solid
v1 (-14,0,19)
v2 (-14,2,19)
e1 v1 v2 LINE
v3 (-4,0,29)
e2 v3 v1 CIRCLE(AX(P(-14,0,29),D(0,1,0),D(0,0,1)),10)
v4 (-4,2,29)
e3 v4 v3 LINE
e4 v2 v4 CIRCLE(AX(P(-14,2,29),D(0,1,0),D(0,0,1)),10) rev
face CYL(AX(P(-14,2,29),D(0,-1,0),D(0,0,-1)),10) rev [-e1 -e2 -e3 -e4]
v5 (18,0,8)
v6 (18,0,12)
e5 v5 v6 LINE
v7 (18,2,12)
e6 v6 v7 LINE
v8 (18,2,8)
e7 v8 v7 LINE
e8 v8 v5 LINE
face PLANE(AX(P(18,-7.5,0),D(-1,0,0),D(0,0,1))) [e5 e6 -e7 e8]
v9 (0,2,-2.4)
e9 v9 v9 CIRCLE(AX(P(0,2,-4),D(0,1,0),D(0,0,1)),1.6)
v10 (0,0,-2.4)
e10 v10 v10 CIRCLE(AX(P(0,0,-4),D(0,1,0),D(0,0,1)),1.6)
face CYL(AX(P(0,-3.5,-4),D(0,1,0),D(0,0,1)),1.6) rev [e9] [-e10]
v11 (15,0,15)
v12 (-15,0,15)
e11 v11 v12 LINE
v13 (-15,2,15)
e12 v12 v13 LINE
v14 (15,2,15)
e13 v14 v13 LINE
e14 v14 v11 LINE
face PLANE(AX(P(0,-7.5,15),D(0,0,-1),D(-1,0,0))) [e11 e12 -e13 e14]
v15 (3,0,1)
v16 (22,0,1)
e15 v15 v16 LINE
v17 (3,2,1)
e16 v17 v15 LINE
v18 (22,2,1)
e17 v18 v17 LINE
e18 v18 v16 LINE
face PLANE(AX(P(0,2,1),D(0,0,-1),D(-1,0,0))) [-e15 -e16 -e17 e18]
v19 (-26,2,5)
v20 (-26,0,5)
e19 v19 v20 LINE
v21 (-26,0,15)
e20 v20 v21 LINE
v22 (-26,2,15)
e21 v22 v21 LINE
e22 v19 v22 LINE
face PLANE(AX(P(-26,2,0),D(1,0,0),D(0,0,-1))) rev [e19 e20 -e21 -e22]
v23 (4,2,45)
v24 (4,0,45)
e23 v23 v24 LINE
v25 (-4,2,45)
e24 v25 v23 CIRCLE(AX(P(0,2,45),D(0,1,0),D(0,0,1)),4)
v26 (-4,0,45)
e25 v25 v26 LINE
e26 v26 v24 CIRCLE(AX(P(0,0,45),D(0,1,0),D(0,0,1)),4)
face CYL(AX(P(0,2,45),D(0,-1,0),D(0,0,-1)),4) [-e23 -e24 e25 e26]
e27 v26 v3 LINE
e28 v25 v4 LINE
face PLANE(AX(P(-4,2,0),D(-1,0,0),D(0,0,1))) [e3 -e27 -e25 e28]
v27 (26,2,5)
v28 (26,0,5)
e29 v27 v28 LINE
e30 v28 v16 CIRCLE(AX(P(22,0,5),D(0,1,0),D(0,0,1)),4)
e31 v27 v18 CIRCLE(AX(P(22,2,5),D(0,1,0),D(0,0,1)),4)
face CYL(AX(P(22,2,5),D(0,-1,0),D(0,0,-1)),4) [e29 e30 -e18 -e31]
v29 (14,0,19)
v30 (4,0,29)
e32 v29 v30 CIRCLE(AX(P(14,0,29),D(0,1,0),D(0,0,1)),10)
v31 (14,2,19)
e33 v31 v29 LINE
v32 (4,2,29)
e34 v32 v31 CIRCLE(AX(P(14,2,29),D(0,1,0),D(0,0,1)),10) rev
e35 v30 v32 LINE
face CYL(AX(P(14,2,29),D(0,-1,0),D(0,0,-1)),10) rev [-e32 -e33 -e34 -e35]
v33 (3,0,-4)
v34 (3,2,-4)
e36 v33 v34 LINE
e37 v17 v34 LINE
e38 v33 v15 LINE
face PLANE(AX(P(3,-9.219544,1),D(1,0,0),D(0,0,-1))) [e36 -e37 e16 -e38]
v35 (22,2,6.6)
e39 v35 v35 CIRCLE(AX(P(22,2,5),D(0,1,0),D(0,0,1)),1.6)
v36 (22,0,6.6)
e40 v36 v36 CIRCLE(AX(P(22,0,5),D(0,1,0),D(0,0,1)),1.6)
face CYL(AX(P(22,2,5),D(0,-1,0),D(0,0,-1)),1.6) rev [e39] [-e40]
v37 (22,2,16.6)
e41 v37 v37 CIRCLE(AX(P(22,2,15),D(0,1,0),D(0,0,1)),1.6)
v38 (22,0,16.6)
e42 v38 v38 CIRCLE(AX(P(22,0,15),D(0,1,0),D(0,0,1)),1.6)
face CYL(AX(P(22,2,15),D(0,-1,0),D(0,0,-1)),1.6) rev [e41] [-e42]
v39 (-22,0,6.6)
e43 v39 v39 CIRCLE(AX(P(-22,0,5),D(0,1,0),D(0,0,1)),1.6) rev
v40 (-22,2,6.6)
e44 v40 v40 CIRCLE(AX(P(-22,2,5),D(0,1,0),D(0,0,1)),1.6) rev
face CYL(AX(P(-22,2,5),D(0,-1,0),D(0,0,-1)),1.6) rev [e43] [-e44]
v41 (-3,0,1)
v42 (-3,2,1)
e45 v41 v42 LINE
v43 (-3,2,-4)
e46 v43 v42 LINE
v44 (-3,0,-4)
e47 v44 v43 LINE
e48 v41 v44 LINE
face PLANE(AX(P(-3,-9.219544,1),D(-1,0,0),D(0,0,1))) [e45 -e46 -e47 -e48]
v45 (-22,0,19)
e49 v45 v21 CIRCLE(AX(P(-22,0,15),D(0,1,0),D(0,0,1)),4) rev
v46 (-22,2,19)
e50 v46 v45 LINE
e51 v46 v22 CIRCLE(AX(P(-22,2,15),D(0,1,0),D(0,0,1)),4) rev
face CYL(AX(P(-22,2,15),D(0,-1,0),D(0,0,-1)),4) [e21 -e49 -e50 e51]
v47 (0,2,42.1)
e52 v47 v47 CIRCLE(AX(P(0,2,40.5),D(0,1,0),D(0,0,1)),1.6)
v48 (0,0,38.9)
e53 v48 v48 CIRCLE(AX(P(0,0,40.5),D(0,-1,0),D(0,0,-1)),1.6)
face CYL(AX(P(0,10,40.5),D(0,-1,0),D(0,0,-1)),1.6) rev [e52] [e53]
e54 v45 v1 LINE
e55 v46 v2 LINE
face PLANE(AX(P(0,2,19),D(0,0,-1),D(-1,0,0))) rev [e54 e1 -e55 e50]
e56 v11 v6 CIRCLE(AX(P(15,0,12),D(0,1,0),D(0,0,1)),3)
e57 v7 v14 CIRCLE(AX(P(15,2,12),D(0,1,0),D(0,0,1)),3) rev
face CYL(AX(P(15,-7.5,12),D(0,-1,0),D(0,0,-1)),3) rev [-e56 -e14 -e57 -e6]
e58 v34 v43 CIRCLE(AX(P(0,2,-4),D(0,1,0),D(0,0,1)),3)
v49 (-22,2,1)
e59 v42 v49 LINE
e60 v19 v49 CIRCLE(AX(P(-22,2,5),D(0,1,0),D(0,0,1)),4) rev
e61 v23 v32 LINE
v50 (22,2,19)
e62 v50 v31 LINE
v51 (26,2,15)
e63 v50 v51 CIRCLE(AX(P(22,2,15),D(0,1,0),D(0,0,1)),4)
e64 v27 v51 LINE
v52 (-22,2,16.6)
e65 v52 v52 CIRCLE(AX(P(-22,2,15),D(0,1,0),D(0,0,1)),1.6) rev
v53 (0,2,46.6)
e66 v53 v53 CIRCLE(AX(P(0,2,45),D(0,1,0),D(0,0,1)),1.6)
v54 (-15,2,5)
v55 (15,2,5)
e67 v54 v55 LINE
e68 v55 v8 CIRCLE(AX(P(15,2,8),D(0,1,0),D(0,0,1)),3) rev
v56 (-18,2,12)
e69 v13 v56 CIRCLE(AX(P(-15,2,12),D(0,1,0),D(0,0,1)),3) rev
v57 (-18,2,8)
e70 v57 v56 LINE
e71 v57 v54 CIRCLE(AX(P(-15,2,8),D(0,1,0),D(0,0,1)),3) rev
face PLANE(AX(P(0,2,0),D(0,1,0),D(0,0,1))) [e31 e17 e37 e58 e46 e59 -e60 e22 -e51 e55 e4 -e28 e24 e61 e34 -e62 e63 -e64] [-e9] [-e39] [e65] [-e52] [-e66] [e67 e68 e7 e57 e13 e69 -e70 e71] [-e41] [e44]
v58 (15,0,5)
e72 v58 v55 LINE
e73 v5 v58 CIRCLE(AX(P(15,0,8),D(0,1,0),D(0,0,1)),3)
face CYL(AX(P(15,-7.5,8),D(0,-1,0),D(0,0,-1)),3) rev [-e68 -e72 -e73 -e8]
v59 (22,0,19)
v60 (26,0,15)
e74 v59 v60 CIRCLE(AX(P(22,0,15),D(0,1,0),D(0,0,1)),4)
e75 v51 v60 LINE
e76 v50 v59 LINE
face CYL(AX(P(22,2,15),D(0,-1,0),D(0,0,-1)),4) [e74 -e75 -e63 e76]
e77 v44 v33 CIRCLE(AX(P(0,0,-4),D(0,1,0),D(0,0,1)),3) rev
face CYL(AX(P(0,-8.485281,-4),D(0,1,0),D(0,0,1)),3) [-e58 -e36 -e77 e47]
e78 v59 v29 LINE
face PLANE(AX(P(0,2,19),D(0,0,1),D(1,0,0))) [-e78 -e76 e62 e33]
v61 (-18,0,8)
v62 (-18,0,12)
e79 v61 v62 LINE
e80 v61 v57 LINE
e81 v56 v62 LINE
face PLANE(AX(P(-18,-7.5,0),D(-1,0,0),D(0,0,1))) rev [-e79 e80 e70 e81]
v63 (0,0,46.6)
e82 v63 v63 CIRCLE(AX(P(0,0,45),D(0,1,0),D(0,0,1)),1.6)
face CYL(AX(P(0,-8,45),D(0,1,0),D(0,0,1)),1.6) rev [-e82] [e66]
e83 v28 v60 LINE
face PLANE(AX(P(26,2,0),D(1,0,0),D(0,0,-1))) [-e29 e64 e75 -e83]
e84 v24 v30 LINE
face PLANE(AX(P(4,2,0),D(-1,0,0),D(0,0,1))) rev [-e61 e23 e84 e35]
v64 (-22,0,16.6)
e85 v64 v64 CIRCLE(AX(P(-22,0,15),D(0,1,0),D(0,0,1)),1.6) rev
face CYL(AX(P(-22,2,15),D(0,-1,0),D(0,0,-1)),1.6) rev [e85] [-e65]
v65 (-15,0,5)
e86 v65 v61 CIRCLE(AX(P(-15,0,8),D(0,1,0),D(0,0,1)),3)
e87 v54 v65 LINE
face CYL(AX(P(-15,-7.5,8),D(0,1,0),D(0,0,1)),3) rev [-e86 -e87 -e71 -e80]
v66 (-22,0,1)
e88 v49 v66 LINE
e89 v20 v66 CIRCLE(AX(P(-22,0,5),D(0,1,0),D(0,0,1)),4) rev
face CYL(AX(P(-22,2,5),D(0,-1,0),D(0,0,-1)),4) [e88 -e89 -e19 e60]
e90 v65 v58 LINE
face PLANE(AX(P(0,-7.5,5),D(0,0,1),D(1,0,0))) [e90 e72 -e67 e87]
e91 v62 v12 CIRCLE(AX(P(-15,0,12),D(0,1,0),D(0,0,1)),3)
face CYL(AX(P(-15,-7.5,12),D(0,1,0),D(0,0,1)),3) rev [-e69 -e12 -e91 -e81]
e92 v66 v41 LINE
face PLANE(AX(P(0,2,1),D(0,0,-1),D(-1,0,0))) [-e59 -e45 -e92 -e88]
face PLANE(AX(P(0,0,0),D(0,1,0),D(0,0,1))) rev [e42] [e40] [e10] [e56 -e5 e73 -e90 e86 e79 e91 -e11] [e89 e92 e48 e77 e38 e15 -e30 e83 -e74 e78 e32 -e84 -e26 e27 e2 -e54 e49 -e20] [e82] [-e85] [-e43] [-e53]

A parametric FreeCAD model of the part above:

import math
import FreeCAD as App
import Part
import Sketcher

V = App.Vector


def edges_at(feature, points):
    """Names of the edges that pass closest to the given points."""
    edges = feature.Shape.Edges
    near = lambda p: min(range(len(edges)), key=lambda i: edges[i].distToShape(Part.Vertex(*p))[0])
    return sorted({f"Edge{near(p) + 1}" for p in points})


def add_polygon(sketch, points):
    """Adds a closed chain of lines whose ends are joined by coincident constraints."""
    first, n = sketch.GeometryCount, len(points)
    for a, b in zip(points, points[1:] + points[:1]):
        sketch.addGeometry(Part.LineSegment(App.Vector(*a, 0), App.Vector(*b, 0)), False)
    for i in range(n):
        sketch.addConstraint(Sketcher.Constraint("Coincident", first + i, 2, first + (i + 1) % n, 1))

doc = App.newDocument("Part")
body = doc.addObject("PartDesign::Body", "Body")

sketch1 = body.newObject("Sketcher::SketchObject", "Sketch")
sketch1.AttachmentSupport = (doc.getObject("XZ_Plane"), [""])
sketch1.MapMode = "FlatFace"
sketch1.addGeometry([
    Part.LineSegment(V(-4, 19, 0), V(-4, 45, 0)),
    Part.ArcOfCircle(Part.Circle(V(0, 45, 0), V(0, 0, 1), 4), math.radians(0), math.radians(180)),
    Part.LineSegment(V(4, 45, 0), V(4, 19, 0)),
    Part.LineSegment(V(4, 19, 0), V(22, 19, 0)),
    Part.ArcOfCircle(Part.Circle(V(22, 15, 0), V(0, 0, 1), 4), math.radians(0), math.radians(90)),
    Part.LineSegment(V(26, 15, 0), V(26, 5, 0)),
    Part.ArcOfCircle(Part.Circle(V(22, 5, 0), V(0, 0, 1), 4), math.radians(-90), math.radians(0)),
    Part.LineSegment(V(22, 1, 0), V(4, 1, 0)),
    Part.LineSegment(V(4, 1, 0), V(4, 0, 0)),
    Part.ArcOfCircle(Part.Circle(V(0, 0, 0), V(0, 0, 1), 4), math.radians(180), math.radians(360)),
    Part.LineSegment(V(-4, 0, 0), V(-4, 1, 0)),
    Part.LineSegment(V(-4, 1, 0), V(-22, 1, 0)),
    Part.ArcOfCircle(Part.Circle(V(-22, 5, 0), V(0, 0, 1), 4), math.radians(180), math.radians(270)),
    Part.LineSegment(V(-26, 5, 0), V(-26, 15, 0)),
    Part.ArcOfCircle(Part.Circle(V(-22, 15, 0), V(0, 0, 1), 4), math.radians(90), math.radians(180)),
    Part.LineSegment(V(-22, 19, 0), V(-4, 19, 0)),
    Part.LineSegment(V(-1.6, 45, 0), V(-1.6, 30, 0)),
    Part.ArcOfCircle(Part.Circle(V(0, 30, 0), V(0, 0, 1), 1.6), math.radians(180), math.radians(360)),
    Part.LineSegment(V(1.6, 30, 0), V(1.6, 45, 0)),
    Part.ArcOfCircle(Part.Circle(V(0, 45, 0), V(0, 0, 1), 1.6), math.radians(0), math.radians(180)),
    Part.Circle(V(22, 15, 0), V(0, 0, 1), 1.6),
    Part.Circle(V(22, 5, 0), V(0, 0, 1), 1.6),
    Part.Circle(V(-22, 15, 0), V(0, 0, 1), 1.6),
    Part.Circle(V(0, 0, 0), V(0, 0, 1), 1.6),
    Part.Circle(V(-22, 5, 0), V(0, 0, 1), 1.6),
], False)
sketch1.addConstraint([
    Sketcher.Constraint("Tangent", 0, 2, 1, 2),
    Sketcher.Constraint("Tangent", 1, 1, 2, 1),
    Sketcher.Constraint("Coincident", 2, 2, 3, 1),
    Sketcher.Constraint("Tangent", 3, 2, 4, 2),
    Sketcher.Constraint("Tangent", 4, 1, 5, 1),
    Sketcher.Constraint("Tangent", 5, 2, 6, 2),
    Sketcher.Constraint("Tangent", 6, 1, 7, 1),
    Sketcher.Constraint("Coincident", 7, 2, 8, 1),
    Sketcher.Constraint("Tangent", 8, 2, 9, 2),
    Sketcher.Constraint("Tangent", 9, 1, 10, 1),
    Sketcher.Constraint("Coincident", 10, 2, 11, 1),
    Sketcher.Constraint("Tangent", 11, 2, 12, 2),
    Sketcher.Constraint("Tangent", 12, 1, 13, 1),
    Sketcher.Constraint("Tangent", 13, 2, 14, 2),
    Sketcher.Constraint("Tangent", 14, 1, 15, 1),
    Sketcher.Constraint("Coincident", 15, 2, 0, 1),
    Sketcher.Constraint("Tangent", 16, 2, 17, 1),
    Sketcher.Constraint("Tangent", 17, 2, 18, 1),
    Sketcher.Constraint("Tangent", 18, 2, 19, 1),
    Sketcher.Constraint("Tangent", 19, 2, 16, 1),
    Sketcher.Constraint("Vertical", 0),
    Sketcher.Constraint("Vertical", 2),
    Sketcher.Constraint("Horizontal", 3),
    Sketcher.Constraint("Vertical", 5),
    Sketcher.Constraint("Horizontal", 7),
    Sketcher.Constraint("Vertical", 8),
    Sketcher.Constraint("Vertical", 10),
    Sketcher.Constraint("Horizontal", 11),
    Sketcher.Constraint("Vertical", 13),
    Sketcher.Constraint("Horizontal", 15),
    Sketcher.Constraint("Vertical", 16),
    Sketcher.Constraint("Vertical", 18),
    Sketcher.Constraint("Coincident", 9, 3, -1, 1),
    Sketcher.Constraint("Coincident", 23, 3, -1, 1),
    Sketcher.Constraint("Coincident", 19, 3, 1, 3),
    Sketcher.Constraint("Coincident", 20, 3, 4, 3),
    Sketcher.Constraint("Coincident", 21, 3, 6, 3),
    Sketcher.Constraint("Coincident", 22, 3, 14, 3),
    Sketcher.Constraint("Coincident", 24, 3, 12, 3),
    Sketcher.Constraint("Equal", 1, 4),
    Sketcher.Constraint("Equal", 4, 6),
    Sketcher.Constraint("Equal", 6, 9),
    Sketcher.Constraint("Equal", 9, 12),
    Sketcher.Constraint("Equal", 12, 14),
    Sketcher.Constraint("Equal", 19, 20),
    Sketcher.Constraint("Equal", 20, 21),
    Sketcher.Constraint("Equal", 21, 22),
    Sketcher.Constraint("Equal", 22, 23),
    Sketcher.Constraint("Equal", 23, 24),
    Sketcher.Constraint("Symmetric", 6, 3, 12, 3, -2),
    Sketcher.Constraint("Symmetric", 2, 2, 15, 2, -2),
    Sketcher.Constraint("Radius", 1, 4.0),
    Sketcher.Constraint("Diameter", 20, 3.2),
    Sketcher.Constraint("DistanceX", 3, 1, 3, 2, 18.0),
    Sketcher.Constraint("DistanceY", 0, 1, 0, 2, 26.0),
    Sketcher.Constraint("DistanceY", 5, 2, 5, 1, 10.0),
    Sketcher.Constraint("DistanceY", 8, 2, 8, 1, 1.0),
    Sketcher.Constraint("DistanceY", 16, 2, 16, 1, 15.0),
])
pad1 = body.newObject("PartDesign::Pad", "Pad")
pad1.Profile = sketch1
pad1.Length = 2
pad1.Reversed = True
doc.recompute()

fillet = body.newObject("PartDesign::Fillet", "Fillet")
fillet.Base = (pad1, edges_at(pad1, [(-4, 1, 19), (4, 1, 19)]))
fillet.Radius = 10

sketch2 = body.newObject("Sketcher::SketchObject", "Sketch001")
sketch2.AttachmentSupport = (doc.getObject("XZ_Plane"), [""])
sketch2.MapMode = "FlatFace"
sketch2.AttachmentOffset = App.Placement(V(0, 0, -2), App.Rotation())
sketch2.addGeometry([
    Part.LineSegment(V(4, 0, 0), V(4, -3, 0)),
    Part.ArcOfCircle(Part.Circle(V(0, -3, 0), V(0, 0, 1), 4), math.radians(180), math.radians(360)),
    Part.LineSegment(V(-4, -3, 0), V(-4, 0, 0)),
    Part.ArcOfCircle(Part.Circle(V(0, 0, 0), V(0, 0, 1), 4), math.radians(0), math.radians(180)),
    Part.ArcOfCircle(Part.Circle(V(0, -3, 0), V(0, 0, 1), 1.6), math.radians(-152), math.radians(-28)),
    Part.ArcOfCircle(Part.Circle(V(0, 0, 0), V(0, 0, 1), 4), math.radians(-111), math.radians(-69)),
], False)
sketch2.addConstraint([
    Sketcher.Constraint("Tangent", 0, 2, 1, 2),
    Sketcher.Constraint("Tangent", 1, 1, 2, 1),
    Sketcher.Constraint("Tangent", 2, 2, 3, 2),
    Sketcher.Constraint("Tangent", 3, 1, 0, 1),
    Sketcher.Constraint("Coincident", 4, 1, 5, 1),
    Sketcher.Constraint("Coincident", 5, 2, 4, 2),
    Sketcher.Constraint("Vertical", 0),
    Sketcher.Constraint("Vertical", 2),
    Sketcher.Constraint("Coincident", 3, 3, -1, 1),
    Sketcher.Constraint("Coincident", 5, 3, -1, 1),
    Sketcher.Constraint("Coincident", 4, 3, 1, 3),
    Sketcher.Constraint("Equal", 3, 5),
    Sketcher.Constraint("Radius", 1, 4.0),
    Sketcher.Constraint("Radius", 4, 1.6),
    Sketcher.Constraint("DistanceY", 0, 2, 0, 1, 3.0),
])
pad2 = body.newObject("PartDesign::Pad", "Pad001")
pad2.Profile = sketch2
pad2.Length = 2

sketch3 = body.newObject("Sketcher::SketchObject", "Sketch002")
sketch3.AttachmentSupport = (doc.getObject("XZ_Plane"), [""])
sketch3.MapMode = "FlatFace"
sketch3.AttachmentOffset = App.Placement(V(0, 0, -2), App.Rotation())
sketch3.addGeometry(Part.Circle(V(0, -3, 0), V(0, 0, 1), 1.6), False)
sketch3.addConstraint([
    Sketcher.Constraint("PointOnObject", 0, 3, -2),
    Sketcher.Constraint("Diameter", 0, 3.2),
    Sketcher.Constraint("DistanceY", 0, 3, -1, 1, 3.0),
])
pocket1 = body.newObject("PartDesign::Pocket", "Pocket")
pocket1.Profile = sketch3
pocket1.Length = 4
pocket1.Reversed = True

sketch4 = body.newObject("Sketcher::SketchObject", "Sketch003")
sketch4.AttachmentSupport = (doc.getObject("XZ_Plane"), [""])
sketch4.MapMode = "FlatFace"
sketch4.AttachmentOffset = App.Placement(V(0, 0, -2), App.Rotation())
add_polygon(sketch4, [(-4, 1), (4, 1), (9, -13), (-12, -14)])
sketch4.addConstraint([
    Sketcher.Constraint("Horizontal", 0),
    Sketcher.Constraint("DistanceX", 0, 1, 0, 2, 8.0),
    Sketcher.Constraint("DistanceX", -1, 1, 0, 2, 4.0),
    Sketcher.Constraint("DistanceY", -1, 1, 0, 2, 1.0),
    Sketcher.Constraint("Distance", 3, 17.341099),
    Sketcher.Constraint("DistanceY", 2, 2, 1, 2, 1.51228),
    Sketcher.Constraint("Distance", 1, 14.809086),
    Sketcher.Constraint("Distance", 2, 21.133514),
])
pocket2 = body.newObject("PartDesign::Pocket", "Pocket001")
pocket2.Profile = sketch4
pocket2.Length = 10
pocket2.Reversed = True

sketch5 = body.newObject("Sketcher::SketchObject", "Sketch004")
sketch5.AttachmentSupport = (doc.getObject("XZ_Plane"), [""])
sketch5.MapMode = "FlatFace"
sketch5.AttachmentOffset = App.Placement(V(0, 0, -2), App.Rotation())
sketch5.addGeometry([
    Part.Circle(V(0, 1, 0), V(0, 0, 1), 3),
    Part.Circle(V(0, 1, 0), V(0, 0, 1), 1.6),
], False)
sketch5.addConstraint([
    Sketcher.Constraint("Coincident", 1, 3, 0, 3),
    Sketcher.Constraint("PointOnObject", 0, 3, -2),
    Sketcher.Constraint("Diameter", 0, 6.0),
    Sketcher.Constraint("Diameter", 1, 3.2),
    Sketcher.Constraint("DistanceY", -1, 1, 0, 3, 1.0),
])
pad3 = body.newObject("PartDesign::Pad", "Pad002")
pad3.Profile = sketch5
pad3.Length = 2

sketch6 = body.newObject("Sketcher::SketchObject", "Sketch005")
sketch6.AttachmentSupport = (doc.getObject("XZ_Plane"), [""])
sketch6.MapMode = "FlatFace"
sketch6.AttachmentOffset = App.Placement(V(0, 0, -2), App.Rotation())
sketch6.addGeometry(Part.Circle(V(0, 1, 0), V(0, 0, 1), 1.6), False)
sketch6.addConstraint([
    Sketcher.Constraint("PointOnObject", 0, 3, -2),
    Sketcher.Constraint("Diameter", 0, 3.2),
    Sketcher.Constraint("DistanceY", -1, 1, 0, 3, 1.0),
])
pocket3 = body.newObject("PartDesign::Pocket", "Pocket002")
pocket3.Profile = sketch6
pocket3.Length = 10
pocket3.Reversed = True

sketch7 = body.newObject("Sketcher::SketchObject", "Sketch006")
sketch7.AttachmentSupport = (doc.getObject("XZ_Plane"), [""])
sketch7.MapMode = "FlatFace"
sketch7.AttachmentOffset = App.Placement(V(0, 0, -2), App.Rotation())
add_polygon(sketch7, [(-18, 5), (-18, 15), (18, 15), (18, 5)])
sketch7.addConstraint([
    Sketcher.Constraint("Vertical", 0),
    Sketcher.Constraint("Horizontal", 1),
    Sketcher.Constraint("Vertical", 2),
    Sketcher.Constraint("Horizontal", 3),
    Sketcher.Constraint("DistanceX", 1, 1, 1, 2, 36.0),
    Sketcher.Constraint("DistanceY", 0, 1, 0, 2, 10.0),
    Sketcher.Constraint("DistanceX", 0, 2, -1, 1, 18.0),
    Sketcher.Constraint("DistanceY", -1, 1, 0, 2, 15.0),
])
pocket4 = body.newObject("PartDesign::Pocket", "Pocket003")
pocket4.Profile = sketch7
pocket4.Length = 9.5
pocket4.Reversed = True
doc.recompute()

fillet2 = body.newObject("PartDesign::Fillet", "Fillet001")
fillet2.Base = (pocket4, edges_at(pocket4, [
    (-18, 1, 5),
    (18, 1, 5),
    (18, 1, 15),
    (-18, 1, 15),
]))
fillet2.Radius = 3

sketch8 = body.newObject("Sketcher::SketchObject", "Sketch007")
sketch8.AttachmentSupport = (doc.getObject("XZ_Plane"), [""])
sketch8.MapMode = "FlatFace"
sketch8.AttachmentOffset = App.Placement(V(0, 0, -2), App.Rotation())
sketch8.addGeometry(Part.Circle(V(0, 1, 0), V(0, 0, 1), 1.6), False)
sketch8.addConstraint([
    Sketcher.Constraint("PointOnObject", 0, 3, -2),
    Sketcher.Constraint("Diameter", 0, 3.2),
    Sketcher.Constraint("DistanceY", -1, 1, 0, 3, 1.0),
])
pad4 = body.newObject("PartDesign::Pad", "Pad003")
pad4.Profile = sketch8
pad4.Length = 2

sketch9 = body.newObject("Sketcher::SketchObject", "Sketch008")
sketch9.AttachmentSupport = (doc.getObject("XZ_Plane"), [""])
sketch9.MapMode = "FlatFace"
sketch9.AttachmentOffset = App.Placement(V(0, 0, -2), App.Rotation())
sketch9.addGeometry([
    Part.LineSegment(V(3, 1, 0), V(3, -3, 0)),
    Part.ArcOfCircle(Part.Circle(V(0, -3, 0), V(0, 0, 1), 3), math.radians(180), math.radians(360)),
    Part.LineSegment(V(-3, -3, 0), V(-3, 1, 0)),
    Part.LineSegment(V(-3, 1, 0), V(3, 1, 0)),
    Part.Circle(V(0, -3, 0), V(0, 0, 1), 1.6),
], False)
sketch9.addConstraint([
    Sketcher.Constraint("Tangent", 0, 2, 1, 2),
    Sketcher.Constraint("Tangent", 1, 1, 2, 1),
    Sketcher.Constraint("Coincident", 2, 2, 3, 1),
    Sketcher.Constraint("Coincident", 3, 2, 0, 1),
    Sketcher.Constraint("Vertical", 0),
    Sketcher.Constraint("Vertical", 2),
    Sketcher.Constraint("Horizontal", 3),
    Sketcher.Constraint("Coincident", 4, 3, 1, 3),
    Sketcher.Constraint("PointOnObject", 1, 3, -2),
    Sketcher.Constraint("Radius", 1, 3.0),
    Sketcher.Constraint("Diameter", 4, 3.2),
    Sketcher.Constraint("DistanceY", 0, 2, 0, 1, 4.0),
    Sketcher.Constraint("DistanceY", 1, 3, -1, 1, 3.0),
])
pad5 = body.newObject("PartDesign::Pad", "Pad004")
pad5.Profile = sketch9
pad5.Length = 2

sketch10 = body.newObject("Sketcher::SketchObject", "Sketch009")
sketch10.AttachmentSupport = (doc.getObject("XZ_Plane"), [""])
sketch10.MapMode = "FlatFace"
sketch10.AttachmentOffset = App.Placement(V(0, 0, -2), App.Rotation())
sketch10.addGeometry(Part.Circle(V(0, -3, 0), V(0, 0, 1), 1.6), False)
sketch10.addConstraint([
    Sketcher.Constraint("PointOnObject", 0, 3, -2),
    Sketcher.Constraint("Diameter", 0, 3.2),
    Sketcher.Constraint("DistanceY", 0, 3, -1, 1, 3.0),
])
pocket5 = body.newObject("PartDesign::Pocket", "Pocket004")
pocket5.Profile = sketch10
pocket5.Length = 10
pocket5.Reversed = True

sketch11 = body.newObject("Sketcher::SketchObject", "Sketch010")
sketch11.AttachmentSupport = (doc.getObject("XZ_Plane"), [""])
sketch11.MapMode = "FlatFace"
sketch11.AttachmentOffset = App.Placement(V(0, 0, -2), App.Rotation())
sketch11.addGeometry([
    Part.LineSegment(V(-3, -4, 0), V(-3, -3, 0)),
    Part.LineSegment(V(-3, -3, 0), V(-2.83, -3, 0)),
    Part.ArcOfCircle(Part.Circle(V(0, -4, 0), V(0, 0, 1), 3), math.radians(19), math.radians(161)),
    Part.LineSegment(V(2.83, -3, 0), V(3, -3, 0)),
    Part.LineSegment(V(3, -3, 0), V(3, -4, 0)),
    Part.ArcOfCircle(Part.Circle(V(0, -4, 0), V(0, 0, 1), 3), math.radians(180), math.radians(360)),
], False)
sketch11.addConstraint([
    Sketcher.Constraint("Coincident", 0, 2, 1, 1),
    Sketcher.Constraint("Coincident", 1, 2, 2, 2),
    Sketcher.Constraint("Coincident", 2, 1, 3, 1),
    Sketcher.Constraint("Coincident", 3, 2, 4, 1),
    Sketcher.Constraint("Tangent", 4, 2, 5, 2),
    Sketcher.Constraint("Tangent", 5, 1, 0, 1),
    Sketcher.Constraint("Vertical", 0),
    Sketcher.Constraint("Horizontal", 1),
    Sketcher.Constraint("Horizontal", 3),
    Sketcher.Constraint("Vertical", 4),
    Sketcher.Constraint("Coincident", 5, 3, 2, 3),
    Sketcher.Constraint("Equal", 2, 5),
    Sketcher.Constraint("Symmetric", 1, 2, 2, 1, -2),
    Sketcher.Constraint("Radius", 2, 3.0),
    Sketcher.Constraint("DistanceY", 0, 1, 0, 2, 1.0),
    Sketcher.Constraint("DistanceY", 2, 3, -1, 1, 4.0),
])
pad6 = body.newObject("PartDesign::Pad", "Pad005")
pad6.Profile = sketch11
pad6.Length = 2

sketch12 = body.newObject("Sketcher::SketchObject", "Sketch011")
sketch12.AttachmentSupport = (doc.getObject("XZ_Plane"), [""])
sketch12.MapMode = "FlatFace"
sketch12.AttachmentOffset = App.Placement(V(0, 0, -2), App.Rotation())
sketch12.addGeometry(Part.Circle(V(0, -4, 0), V(0, 0, 1), 1.6), False)
sketch12.addConstraint([
    Sketcher.Constraint("PointOnObject", 0, 3, -2),
    Sketcher.Constraint("Diameter", 0, 3.2),
    Sketcher.Constraint("DistanceY", 0, 3, -1, 1, 4.0),
])
pocket6 = body.newObject("PartDesign::Pocket", "Pocket005")
pocket6.Profile = sketch12
pocket6.Length = 5.5
pocket6.Reversed = True

sketch13 = body.newObject("Sketcher::SketchObject", "Sketch012")
sketch13.AttachmentSupport = (doc.getObject("XZ_Plane"), [""])
sketch13.MapMode = "FlatFace"
sketch13.AttachmentOffset = App.Placement(V(0, 0, -2), App.Rotation())
sketch13.addGeometry([
    Part.LineSegment(V(-4, 24, 0), V(-4, 45, 0)),
    Part.ArcOfCircle(Part.Circle(V(0, 45, 0), V(0, 0, 1), 4), math.radians(0), math.radians(180)),
    Part.LineSegment(V(4, 45, 0), V(4, 24, 0)),
    Part.LineSegment(V(4, 24, 0), V(-4, 24, 0)),
], False)
sketch13.addConstraint([
    Sketcher.Constraint("Tangent", 0, 2, 1, 2),
    Sketcher.Constraint("Tangent", 1, 1, 2, 1),
    Sketcher.Constraint("Coincident", 2, 2, 3, 1),
    Sketcher.Constraint("Coincident", 3, 2, 0, 1),
    Sketcher.Constraint("Vertical", 0),
    Sketcher.Constraint("Vertical", 2),
    Sketcher.Constraint("Horizontal", 3),
    Sketcher.Constraint("PointOnObject", 1, 3, -2),
    Sketcher.Constraint("Radius", 1, 4.0),
    Sketcher.Constraint("DistanceY", -1, 1, 1, 3, 45.0),
    Sketcher.Constraint("DistanceY", 0, 1, 0, 2, 21.04625),
])
pad7 = body.newObject("PartDesign::Pad", "Pad006")
pad7.Profile = sketch13
pad7.Length = 2

sketch14 = body.newObject("Sketcher::SketchObject", "Sketch013")
sketch14.AttachmentSupport = (doc.getObject("XZ_Plane"), [""])
sketch14.MapMode = "FlatFace"
sketch14.AttachmentOffset = App.Placement(V(0, 0, -2), App.Rotation())
sketch14.addGeometry([
    Part.Circle(V(0, 45, 0), V(0, 0, 1), 1.6),
    Part.Circle(V(0, 36, 0), V(0, 0, 1), 1.6),
], False)
sketch14.addConstraint([
    Sketcher.Constraint("Equal", 0, 1),
    Sketcher.Constraint("PointOnObject", 0, 3, -2),
    Sketcher.Constraint("PointOnObject", 1, 3, -2),
    Sketcher.Constraint("Diameter", 0, 3.2),
    Sketcher.Constraint("DistanceY", -1, 1, 0, 3, 45.0),
    Sketcher.Constraint("DistanceY", -1, 1, 1, 3, 36.0),
])
pocket7 = body.newObject("PartDesign::Pocket", "Pocket006")
pocket7.Profile = sketch14
pocket7.Length = 10
pocket7.Reversed = True

sketch15 = body.newObject("Sketcher::SketchObject", "Sketch014")
sketch15.AttachmentSupport = (doc.getObject("XZ_Plane"), [""])
sketch15.MapMode = "FlatFace"
sketch15.AttachmentOffset = App.Placement(V(0, 0, -2), App.Rotation())
sketch15.addGeometry(Part.Circle(V(0, 36, 0), V(0, 0, 1), 2.9), False)
sketch15.addConstraint([
    Sketcher.Constraint("PointOnObject", 0, 3, -2),
    Sketcher.Constraint("DistanceY", -1, 1, 0, 3, 36.0),
    Sketcher.Constraint("Diameter", 0, 5.769799),
])
pad8 = body.newObject("PartDesign::Pad", "Pad007")
pad8.Profile = sketch15
pad8.Length = 1

sketch16 = body.newObject("Sketcher::SketchObject", "Sketch015")
sketch16.AttachmentSupport = (doc.getObject("XZ_Plane"), [""])
sketch16.MapMode = "FlatFace"
sketch16.AttachmentOffset = App.Placement(V(0, 0, -1), App.Rotation())
sketch16.addGeometry(Part.Circle(V(0, 36, 0), V(0, 0, 1), 1.6), False)
sketch16.addConstraint([
    Sketcher.Constraint("PointOnObject", 0, 3, -2),
    Sketcher.Constraint("Diameter", 0, 3.2),
    Sketcher.Constraint("DistanceY", -1, 1, 0, 3, 36.0),
])
pad9 = body.newObject("PartDesign::Pad", "Pad008")
pad9.Profile = sketch16
pad9.Length = 3

sketch17 = body.newObject("Sketcher::SketchObject", "Sketch016")
sketch17.AttachmentSupport = (doc.getObject("XZ_Plane"), [""])
sketch17.MapMode = "FlatFace"
sketch17.AttachmentOffset = App.Placement(V(0, 0, 2), App.Rotation())
sketch17.addGeometry([
    Part.Circle(V(0, 36, 0), V(0, 0, 1), 1.6),
    Part.Circle(V(0, 36, 0), V(0, 0, 1), 1.5),
], False)
sketch17.addConstraint([
    Sketcher.Constraint("Coincident", 1, 3, 0, 3),
    Sketcher.Constraint("PointOnObject", 0, 3, -2),
    Sketcher.Constraint("Diameter", 1, 3.0),
    Sketcher.Constraint("Diameter", 0, 3.2),
    Sketcher.Constraint("DistanceY", -1, 1, 0, 3, 36.0),
])
pocket8 = body.newObject("PartDesign::Pocket", "Pocket007")
pocket8.Profile = sketch17
pocket8.Length = 2

sketch18 = body.newObject("Sketcher::SketchObject", "Sketch017")
sketch18.AttachmentSupport = (doc.getObject("XZ_Plane"), [""])
sketch18.MapMode = "FlatFace"
sketch18.addGeometry(Part.Circle(V(0, 40.5, 0), V(0, 0, 1), 1.6), False)
sketch18.addConstraint([
    Sketcher.Constraint("PointOnObject", 0, 3, -2),
    Sketcher.Constraint("Diameter", 0, 3.2),
    Sketcher.Constraint("DistanceY", -1, 1, 0, 3, 40.5),
])
pocket9 = body.newObject("PartDesign::Pocket", "Pocket008")
pocket9.Profile = sketch18
pocket9.Length = 10

sketch19 = body.newObject("Sketcher::SketchObject", "Sketch018")
sketch19.AttachmentSupport = (doc.getObject("XZ_Plane"), [""])
sketch19.MapMode = "FlatFace"
sketch19.addGeometry(Part.Circle(V(0, 36, 0), V(0, 0, 1), 1.5), False)
sketch19.addConstraint([
    Sketcher.Constraint("PointOnObject", 0, 3, -2),
    Sketcher.Constraint("Diameter", 0, 3.0),
    Sketcher.Constraint("DistanceY", -1, 1, 0, 3, 36.0),
])
pocket10 = body.newObject("PartDesign::Pocket", "Pocket009")
pocket10.Profile = sketch19
pocket10.Length = 8.5
pocket10.Reversed = True

doc.recompute()
